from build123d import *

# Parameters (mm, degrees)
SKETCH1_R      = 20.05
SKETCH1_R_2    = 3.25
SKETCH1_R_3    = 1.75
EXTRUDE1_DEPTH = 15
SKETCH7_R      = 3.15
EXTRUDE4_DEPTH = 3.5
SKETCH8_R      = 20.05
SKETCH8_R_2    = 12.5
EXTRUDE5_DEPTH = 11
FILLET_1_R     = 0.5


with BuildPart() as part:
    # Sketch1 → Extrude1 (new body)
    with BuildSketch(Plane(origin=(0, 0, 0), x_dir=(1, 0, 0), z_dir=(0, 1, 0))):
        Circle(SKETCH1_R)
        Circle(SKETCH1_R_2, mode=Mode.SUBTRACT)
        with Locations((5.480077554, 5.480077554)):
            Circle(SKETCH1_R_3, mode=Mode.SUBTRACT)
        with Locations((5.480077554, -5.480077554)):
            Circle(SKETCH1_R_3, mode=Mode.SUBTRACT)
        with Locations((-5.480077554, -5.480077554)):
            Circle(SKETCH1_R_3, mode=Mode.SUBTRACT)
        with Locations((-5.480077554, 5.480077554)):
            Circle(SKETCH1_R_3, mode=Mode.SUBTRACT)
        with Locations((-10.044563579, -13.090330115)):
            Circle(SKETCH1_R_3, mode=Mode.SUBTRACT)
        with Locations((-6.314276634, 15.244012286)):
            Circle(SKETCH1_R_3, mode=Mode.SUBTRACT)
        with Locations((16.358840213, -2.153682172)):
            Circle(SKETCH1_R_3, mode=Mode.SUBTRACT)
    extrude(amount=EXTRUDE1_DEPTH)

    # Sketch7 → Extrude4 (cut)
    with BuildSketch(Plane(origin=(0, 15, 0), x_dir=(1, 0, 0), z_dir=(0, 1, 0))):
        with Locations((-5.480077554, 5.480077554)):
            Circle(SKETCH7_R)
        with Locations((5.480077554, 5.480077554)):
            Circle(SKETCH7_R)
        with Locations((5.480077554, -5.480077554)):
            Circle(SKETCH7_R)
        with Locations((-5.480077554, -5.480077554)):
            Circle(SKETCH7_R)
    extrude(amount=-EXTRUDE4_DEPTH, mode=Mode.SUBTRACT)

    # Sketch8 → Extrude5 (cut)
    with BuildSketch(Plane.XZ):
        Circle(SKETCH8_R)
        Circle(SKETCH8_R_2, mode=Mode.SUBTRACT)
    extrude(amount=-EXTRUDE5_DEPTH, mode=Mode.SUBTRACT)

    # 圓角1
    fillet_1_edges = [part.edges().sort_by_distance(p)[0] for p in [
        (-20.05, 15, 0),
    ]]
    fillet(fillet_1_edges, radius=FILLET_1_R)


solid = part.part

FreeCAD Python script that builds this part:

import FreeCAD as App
import Part
import Sketcher
Q = App.Units.Quantity


def edges_at(feature, points):
    """Names of the edges that pass closest to the given points."""
    edges = feature.Shape.Edges
    near = lambda p: min(range(len(edges)), key=lambda i: edges[i].distToShape(Part.Vertex(*p))[0])
    return sorted({f"Edge{near(p) + 1}" for p in points})

doc = App.newDocument("Part")
body = doc.addObject("PartDesign::Body", "Body")

# Sketch on XZ plane
sketch1 = body.newObject("Sketcher::SketchObject", "Sketch")
sketch1.AttachmentSupport = (doc.getObject("XZ_Plane"), [""])
sketch1.MapMode = "FlatFace"
sketch1.addGeometry(Part.Circle(App.Vector(0, 0, 0), App.Vector(0, 0, 1), 20.1), False)
sketch1.addGeometry(Part.Circle(App.Vector(-10, 13.1, 0), App.Vector(0, 0, 1), 1.8), False)
sketch1.addGeometry(Part.Circle(App.Vector(-5.5, 5.5, 0), App.Vector(0, 0, 1), 1.8), False)
sketch1.addGeometry(Part.Circle(App.Vector(0, 0, 0), App.Vector(0, 0, 1), 3.2), False)
sketch1.addGeometry(Part.Circle(App.Vector(5.5, 5.5, 0), App.Vector(0, 0, 1), 1.8), False)
sketch1.addGeometry(Part.Circle(App.Vector(16.4, 2.2, 0), App.Vector(0, 0, 1), 1.8), False)
sketch1.addGeometry(Part.Circle(App.Vector(-5.5, -5.5, 0), App.Vector(0, 0, 1), 1.8), False)
sketch1.addGeometry(Part.Circle(App.Vector(-6.3, -15.2, 0), App.Vector(0, 0, 1), 1.8), False)
sketch1.addGeometry(Part.Circle(App.Vector(5.5, -5.5, 0), App.Vector(0, 0, 1), 1.8), False)
sketch1.addConstraint(Sketcher.Constraint("Coincident", 0, 3, -1, 1))
sketch1.addConstraint(Sketcher.Constraint("Coincident", 3, 3, -1, 1))
sketch1.addConstraint(Sketcher.Constraint("Equal", 1, 2))
sketch1.addConstraint(Sketcher.Constraint("Equal", 2, 4))
sketch1.addConstraint(Sketcher.Constraint("Equal", 4, 5))
sketch1.addConstraint(Sketcher.Constraint("Equal", 5, 6))
sketch1.addConstraint(Sketcher.Constraint("Equal", 6, 7))
sketch1.addConstraint(Sketcher.Constraint("Equal", 7, 8))
sketch1.addConstraint(Sketcher.Constraint("Symmetric", 4, 3, 6, 3, -1, 1))
sketch1.addConstraint(Sketcher.Constraint("Symmetric", 2, 3, 8, 3, -1, 1))
sketch1.addConstraint(Sketcher.Constraint("Symmetric", 2, 3, 4, 3, -2))
sketch1.addConstraint(Sketcher.Constraint("Diameter", 0, Q("40.1 mm")))
sketch1.addConstraint(Sketcher.Constraint("Diameter", 1, Q("3.5 mm")))
sketch1.addConstraint(Sketcher.Constraint("Diameter", 3, Q("6.5 mm")))
sketch1.addConstraint(Sketcher.Constraint("DistanceX", 7, 3, 6, 3, Q("0.834199 mm")))
sketch1.addConstraint(Sketcher.Constraint("DistanceY", -1, 1, 1, 3, Q("13.09033 mm")))
sketch1.addConstraint(Sketcher.Constraint("DistanceX", -1, 1, 5, 3, Q("16.35884 mm")))
sketch1.addConstraint(Sketcher.Constraint("DistanceX", 1, 3, 4, 3, Q("15.524641 mm")))
sketch1.addConstraint(Sketcher.Constraint("DistanceY", 7, 3, 2, 3, Q("20.72409 mm")))
sketch1.addConstraint(Sketcher.Constraint("DistanceY", 8, 3, 5, 3, Q("7.63376 mm")))
sketch1.addConstraint(Sketcher.Constraint("DistanceX", 1, 3, -1, 1, Q("10.044564 mm")))
sketch1.addConstraint(Sketcher.Constraint("DistanceY", -1, 1, 2, 3, Q("5.480078 mm")))
pad1 = body.newObject("PartDesign::Pad", "Pad")
pad1.Profile = sketch1
pad1.Length = 15
pad1.Reversed = True

# Sketch on XZ plane
sketch2 = body.newObject("Sketcher::SketchObject", "Sketch001")
sketch2.AttachmentSupport = (doc.getObject("XZ_Plane"), [""])
sketch2.MapMode = "FlatFace"
sketch2.AttachmentOffset = App.Placement(App.Vector(0, 0, -15), App.Rotation())
sketch2.addGeometry(Part.Circle(App.Vector(-5.5, -5.5, 0), App.Vector(0, 0, 1), 3.1), False)
sketch2.addGeometry(Part.Circle(App.Vector(5.5, -5.5, 0), App.Vector(0, 0, 1), 3.1), False)
sketch2.addGeometry(Part.Circle(App.Vector(5.5, 5.5, 0), App.Vector(0, 0, 1), 3.1), False)
sketch2.addGeometry(Part.Circle(App.Vector(-5.5, 5.5, 0), App.Vector(0, 0, 1), 3.1), False)
sketch2.addConstraint(Sketcher.Constraint("Equal", 0, 1))
sketch2.addConstraint(Sketcher.Constraint("Equal", 1, 2))
sketch2.addConstraint(Sketcher.Constraint("Equal", 2, 3))
sketch2.addConstraint(Sketcher.Constraint("Symmetric", 0, 3, 2, 3, -1, 1))
sketch2.addConstraint(Sketcher.Constraint("Symmetric", 1, 3, 3, 3, -1, 1))
sketch2.addConstraint(Sketcher.Constraint("Symmetric", 0, 3, 1, 3, -2))
sketch2.addConstraint(Sketcher.Constraint("Diameter", 0, Q("6.3 mm")))
sketch2.addConstraint(Sketcher.Constraint("DistanceX", 0, 3, -1, 1, Q("5.480078 mm")))
sketch2.addConstraint(Sketcher.Constraint("DistanceY", 0, 3, -1, 1, Q("5.480078 mm")))
pocket1 = body.newObject("PartDesign::Pocket", "Pocket")
pocket1.Profile = sketch2
pocket1.Length = 3.5
pocket1.Reversed = True

# Sketch on XZ plane
sketch3 = body.newObject("Sketcher::SketchObject", "Sketch002")
sketch3.AttachmentSupport = (doc.getObject("XZ_Plane"), [""])
sketch3.MapMode = "FlatFace"
sketch3.addGeometry(Part.Circle(App.Vector(0, 0, 0), App.Vector(0, 0, 1), 20), False)
sketch3.addGeometry(Part.Circle(App.Vector(0, 0, 0), App.Vector(0, 0, 1), 12), False)
sketch3.addConstraint(Sketcher.Constraint("Coincident", 0, 3, -1, 1))
sketch3.addConstraint(Sketcher.Constraint("Coincident", 1, 3, -1, 1))
sketch3.addConstraint(Sketcher.Constraint("Diameter", 1, Q("25 mm")))
sketch3.addConstraint(Sketcher.Constraint("Diameter", 0, Q("40.1 mm")))
pocket2 = body.newObject("PartDesign::Pocket", "Pocket001")
pocket2.Profile = sketch3
pocket2.Length = 11
doc.recompute()

fillet = body.newObject("PartDesign::Fillet", "Fillet")
fillet.Base = (pocket2, edges_at(pocket2, [(-20.05, 15, 0)]))
fillet.Radius = 0.5

doc.recompute()
